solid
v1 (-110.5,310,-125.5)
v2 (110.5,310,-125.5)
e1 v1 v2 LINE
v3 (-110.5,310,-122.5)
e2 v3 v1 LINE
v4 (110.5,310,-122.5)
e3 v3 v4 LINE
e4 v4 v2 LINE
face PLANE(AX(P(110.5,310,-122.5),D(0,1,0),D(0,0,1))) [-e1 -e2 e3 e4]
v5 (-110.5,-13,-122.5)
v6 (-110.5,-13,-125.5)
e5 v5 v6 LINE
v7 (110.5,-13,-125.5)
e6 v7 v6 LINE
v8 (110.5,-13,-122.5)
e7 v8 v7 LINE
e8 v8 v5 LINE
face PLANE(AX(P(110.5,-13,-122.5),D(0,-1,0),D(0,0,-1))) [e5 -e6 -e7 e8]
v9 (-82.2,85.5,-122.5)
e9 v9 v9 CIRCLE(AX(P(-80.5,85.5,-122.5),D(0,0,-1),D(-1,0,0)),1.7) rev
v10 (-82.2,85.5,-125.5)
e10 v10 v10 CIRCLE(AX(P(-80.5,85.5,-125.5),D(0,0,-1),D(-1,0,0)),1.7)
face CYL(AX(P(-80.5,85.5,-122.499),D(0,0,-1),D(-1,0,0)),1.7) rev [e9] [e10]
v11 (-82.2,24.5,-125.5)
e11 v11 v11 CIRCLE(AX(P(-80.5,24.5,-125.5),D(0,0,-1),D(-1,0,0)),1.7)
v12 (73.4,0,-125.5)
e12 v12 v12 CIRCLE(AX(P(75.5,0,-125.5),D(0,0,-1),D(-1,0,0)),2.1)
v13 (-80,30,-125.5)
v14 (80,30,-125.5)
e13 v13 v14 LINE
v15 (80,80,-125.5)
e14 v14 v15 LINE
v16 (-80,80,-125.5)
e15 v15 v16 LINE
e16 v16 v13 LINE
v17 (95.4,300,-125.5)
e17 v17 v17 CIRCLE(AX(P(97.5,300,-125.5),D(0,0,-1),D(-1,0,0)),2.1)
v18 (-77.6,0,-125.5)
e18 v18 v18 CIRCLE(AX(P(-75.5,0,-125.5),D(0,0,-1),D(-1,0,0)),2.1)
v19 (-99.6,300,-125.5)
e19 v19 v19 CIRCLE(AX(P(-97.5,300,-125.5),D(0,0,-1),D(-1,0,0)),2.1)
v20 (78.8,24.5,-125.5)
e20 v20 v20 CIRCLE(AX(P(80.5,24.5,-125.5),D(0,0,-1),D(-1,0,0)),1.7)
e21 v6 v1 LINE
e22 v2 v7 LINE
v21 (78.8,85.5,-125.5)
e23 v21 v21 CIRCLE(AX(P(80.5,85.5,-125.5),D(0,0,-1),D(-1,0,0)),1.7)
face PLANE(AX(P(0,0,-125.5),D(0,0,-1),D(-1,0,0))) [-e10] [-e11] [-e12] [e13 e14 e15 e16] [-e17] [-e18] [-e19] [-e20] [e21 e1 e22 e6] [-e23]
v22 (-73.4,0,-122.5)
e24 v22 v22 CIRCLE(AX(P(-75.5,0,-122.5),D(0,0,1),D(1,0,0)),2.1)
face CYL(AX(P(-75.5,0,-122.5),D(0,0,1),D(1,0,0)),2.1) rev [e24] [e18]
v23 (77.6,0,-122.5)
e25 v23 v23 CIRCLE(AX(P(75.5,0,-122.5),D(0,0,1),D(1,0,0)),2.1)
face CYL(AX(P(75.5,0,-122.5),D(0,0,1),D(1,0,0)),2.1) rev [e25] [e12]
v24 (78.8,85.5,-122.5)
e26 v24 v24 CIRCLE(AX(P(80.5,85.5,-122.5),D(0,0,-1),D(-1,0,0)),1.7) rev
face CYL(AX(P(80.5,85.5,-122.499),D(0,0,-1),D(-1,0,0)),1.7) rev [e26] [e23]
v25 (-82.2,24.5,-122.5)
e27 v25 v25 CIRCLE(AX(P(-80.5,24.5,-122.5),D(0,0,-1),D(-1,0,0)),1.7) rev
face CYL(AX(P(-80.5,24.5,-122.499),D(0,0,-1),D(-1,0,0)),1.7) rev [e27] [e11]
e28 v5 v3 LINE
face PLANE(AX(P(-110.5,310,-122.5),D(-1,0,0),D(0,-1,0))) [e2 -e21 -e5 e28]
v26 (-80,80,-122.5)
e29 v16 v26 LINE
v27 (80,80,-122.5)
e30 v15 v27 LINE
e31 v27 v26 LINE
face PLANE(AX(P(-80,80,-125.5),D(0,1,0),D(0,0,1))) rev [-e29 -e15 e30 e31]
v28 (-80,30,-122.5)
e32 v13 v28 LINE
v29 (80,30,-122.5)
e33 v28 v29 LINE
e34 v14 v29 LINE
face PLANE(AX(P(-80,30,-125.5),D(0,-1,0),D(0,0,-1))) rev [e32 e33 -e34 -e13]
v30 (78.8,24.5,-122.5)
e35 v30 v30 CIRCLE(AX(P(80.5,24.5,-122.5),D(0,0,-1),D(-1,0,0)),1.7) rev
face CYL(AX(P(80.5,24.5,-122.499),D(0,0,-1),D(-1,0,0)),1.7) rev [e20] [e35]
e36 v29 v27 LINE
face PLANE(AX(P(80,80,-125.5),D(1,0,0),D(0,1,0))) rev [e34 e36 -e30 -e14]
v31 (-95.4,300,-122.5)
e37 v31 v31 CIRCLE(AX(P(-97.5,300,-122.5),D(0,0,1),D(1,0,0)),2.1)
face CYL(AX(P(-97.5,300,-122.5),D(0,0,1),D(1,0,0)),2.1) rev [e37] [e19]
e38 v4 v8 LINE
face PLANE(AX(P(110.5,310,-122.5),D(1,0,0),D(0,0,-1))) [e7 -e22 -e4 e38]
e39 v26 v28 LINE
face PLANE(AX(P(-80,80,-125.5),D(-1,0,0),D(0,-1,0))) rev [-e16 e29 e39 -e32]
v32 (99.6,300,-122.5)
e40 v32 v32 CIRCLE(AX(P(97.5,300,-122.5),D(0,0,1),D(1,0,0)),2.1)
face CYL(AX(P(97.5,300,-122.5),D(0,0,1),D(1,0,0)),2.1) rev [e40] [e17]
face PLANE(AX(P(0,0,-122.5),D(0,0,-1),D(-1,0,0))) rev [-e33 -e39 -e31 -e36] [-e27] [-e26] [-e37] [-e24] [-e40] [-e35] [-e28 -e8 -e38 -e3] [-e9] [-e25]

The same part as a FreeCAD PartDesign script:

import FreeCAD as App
import Part
import Sketcher

V = App.Vector

doc = App.newDocument("Part")
params = doc.addObject("Spreadsheet::Sheet", "Params")
for row, (alias, value) in enumerate([
    ("sketch1_width", "221 mm"),
    ("sketch1_height", "323 mm"),
    ("pad1_length", "3 mm"),
    ("sketch2_width", "160 mm"),
    ("sketch2_height", "50 mm"),
    ("sketch3_diameter", "3.4 mm"),
    ("sketch4_diameter", "3.4 mm"),
    ("sketch5_diameter", "3.4 mm"),
    ("sketch6_diameter", "3.4 mm"),
    ("sketch7_diameter", "4.2 mm"),
    ("hole_diameter", "4.2 mm"),
    ("hole_depth", "3 mm"),
], start=1):
    params.set(f"A{row}", alias)
    params.set(f"B{row}", "=" + value)
    params.setAlias(f"B{row}", alias)

body = doc.addObject("PartDesign::Body", "Body")

sketch1 = body.newObject("Sketcher::SketchObject", "Sketch")
sketch1.AttachmentSupport = (doc.getObject("XY_Plane"), [""])
sketch1.MapMode = "FlatFace"
sketch1.AttachmentOffset = App.Placement(V(0, 0, -125.5), App.Rotation())
sketch1.addGeometry(Part.LineSegment(V(110, 310, 0), V(110, -13, 0)), False)
sketch1.addGeometry(Part.LineSegment(V(110, -13, 0), V(-110, -13, 0)), False)
sketch1.addGeometry(Part.LineSegment(V(-110, -13, 0), V(-110, 310, 0)), False)
sketch1.addGeometry(Part.LineSegment(V(-110, 310, 0), V(110, 310, 0)), False)
sketch1.addConstraint(Sketcher.Constraint("Coincident", 0, 2, 1, 1))
sketch1.addConstraint(Sketcher.Constraint("Coincident", 1, 2, 2, 1))
sketch1.addConstraint(Sketcher.Constraint("Coincident", 2, 2, 3, 1))
sketch1.addConstraint(Sketcher.Constraint("Coincident", 3, 2, 0, 1))
sketch1.addConstraint(Sketcher.Constraint("Vertical", 0))
sketch1.addConstraint(Sketcher.Constraint("Horizontal", 1))
sketch1.addConstraint(Sketcher.Constraint("Vertical", 2))
sketch1.addConstraint(Sketcher.Constraint("Horizontal", 3))
sketch1.addConstraint(Sketcher.Constraint("DistanceX", 1, 2, 1, 1, 221.0))
sketch1.addConstraint(Sketcher.Constraint("DistanceY", 0, 2, 0, 1, 323.0))
sketch1.addConstraint(Sketcher.Constraint("DistanceY", 0, 2, -1, 1, 13.0))
sketch1.addConstraint(Sketcher.Constraint("DistanceX", -1, 1, 0, 2, 110.5))
sketch1.setExpression("Constraints[8]", "Params.sketch1_width")
sketch1.setExpression("Constraints[9]", "Params.sketch1_height")
pad1 = body.newObject("PartDesign::Pad", "Pad")
pad1.Profile = sketch1
pad1.setExpression("Length", "Params.pad1_length")

sketch2 = body.newObject("Sketcher::SketchObject", "Sketch001")
sketch2.AttachmentSupport = (doc.getObject("XY_Plane"), [""])
sketch2.MapMode = "FlatFace"
sketch2.AttachmentOffset = App.Placement(V(0, 0, -122.5), App.Rotation())
sketch2.addGeometry(Part.LineSegment(V(-80, 80, 0), V(-80, 30, 0)), False)
sketch2.addGeometry(Part.LineSegment(V(-80, 30, 0), V(80, 30, 0)), False)
sketch2.addGeometry(Part.LineSegment(V(80, 30, 0), V(80, 80, 0)), False)
sketch2.addGeometry(Part.LineSegment(V(80, 80, 0), V(-80, 80, 0)), False)
sketch2.addConstraint(Sketcher.Constraint("Coincident", 0, 2, 1, 1))
sketch2.addConstraint(Sketcher.Constraint("Coincident", 1, 2, 2, 1))
sketch2.addConstraint(Sketcher.Constraint("Coincident", 2, 2, 3, 1))
sketch2.addConstraint(Sketcher.Constraint("Coincident", 3, 2, 0, 1))
sketch2.addConstraint(Sketcher.Constraint("Vertical", 0))
sketch2.addConstraint(Sketcher.Constraint("Horizontal", 1))
sketch2.addConstraint(Sketcher.Constraint("Vertical", 2))
sketch2.addConstraint(Sketcher.Constraint("Horizontal", 3))
sketch2.addConstraint(Sketcher.Constraint("DistanceX", 1, 1, 1, 2, 160.0))
sketch2.addConstraint(Sketcher.Constraint("DistanceY", 0, 2, 0, 1, 50.0))
sketch2.addConstraint(Sketcher.Constraint("DistanceX", 0, 2, -1, 1, 80.0))
sketch2.addConstraint(Sketcher.Constraint("DistanceY", -1, 1, 0, 2, 30.0))
sketch2.setExpression("Constraints[8]", "Params.sketch2_width")
sketch2.setExpression("Constraints[9]", "Params.sketch2_height")
pocket1 = body.newObject("PartDesign::Pocket", "Pocket")
pocket1.Profile = sketch2
pocket1.Type = "ThroughAll"

sketch3 = body.newObject("Sketcher::SketchObject", "Sketch002")
sketch3.AttachmentSupport = (doc.getObject("XY_Plane"), [""])
sketch3.MapMode = "FlatFace"
sketch3.AttachmentOffset = App.Placement(V(0, 0, -125.5), App.Rotation())
sketch3.addGeometry(Part.Circle(V(-80.5, 85.5, 0), V(0, 0, 1), 1.7), False)
sketch3.addConstraint(Sketcher.Constraint("Diameter", 0, 3.4))
sketch3.addConstraint(Sketcher.Constraint("DistanceX", 0, 3, -1, 1, 80.5))
sketch3.addConstraint(Sketcher.Constraint("DistanceY", -1, 1, 0, 3, 85.5))
sketch3.setExpression("Constraints[0]", "Params.sketch3_diameter")
pocket2 = body.newObject("PartDesign::Pocket", "Pocket001")
pocket2.Profile = sketch3
pocket2.Type = "UpToFirst"
pocket2.Reversed = True

sketch4 = body.newObject("Sketcher::SketchObject", "Sketch003")
sketch4.AttachmentSupport = (doc.getObject("XY_Plane"), [""])
sketch4.MapMode = "FlatFace"
sketch4.AttachmentOffset = App.Placement(V(0, 0, -125.5), App.Rotation())
sketch4.addGeometry(Part.Circle(V(-80.5, 24.5, 0), V(0, 0, 1), 1.7), False)
sketch4.addConstraint(Sketcher.Constraint("Diameter", 0, 3.4))
sketch4.addConstraint(Sketcher.Constraint("DistanceX", 0, 3, -1, 1, 80.5))
sketch4.addConstraint(Sketcher.Constraint("DistanceY", -1, 1, 0, 3, 24.5))
sketch4.setExpression("Constraints[0]", "Params.sketch4_diameter")
pocket3 = body.newObject("PartDesign::Pocket", "Pocket002")
pocket3.Profile = sketch4
pocket3.Type = "UpToFirst"
pocket3.Reversed = True

sketch5 = body.newObject("Sketcher::SketchObject", "Sketch004")
sketch5.AttachmentSupport = (doc.getObject("XY_Plane"), [""])
sketch5.MapMode = "FlatFace"
sketch5.AttachmentOffset = App.Placement(V(0, 0, -125.5), App.Rotation())
sketch5.addGeometry(Part.Circle(V(80.5, 24.5, 0), V(0, 0, 1), 1.7), False)
sketch5.addConstraint(Sketcher.Constraint("Diameter", 0, 3.4))
sketch5.addConstraint(Sketcher.Constraint("DistanceX", -1, 1, 0, 3, 80.5))
sketch5.addConstraint(Sketcher.Constraint("DistanceY", -1, 1, 0, 3, 24.5))
sketch5.setExpression("Constraints[0]", "Params.sketch5_diameter")
pocket4 = body.newObject("PartDesign::Pocket", "Pocket003")
pocket4.Profile = sketch5
pocket4.Type = "UpToFirst"
pocket4.Reversed = True

sketch6 = body.newObject("Sketcher::SketchObject", "Sketch005")
sketch6.AttachmentSupport = (doc.getObject("XY_Plane"), [""])
sketch6.MapMode = "FlatFace"
sketch6.AttachmentOffset = App.Placement(V(0, 0, -125.5), App.Rotation())
sketch6.addGeometry(Part.Circle(V(80.5, 85.5, 0), V(0, 0, 1), 1.7), False)
sketch6.addConstraint(Sketcher.Constraint("Diameter", 0, 3.4))
sketch6.addConstraint(Sketcher.Constraint("DistanceX", -1, 1, 0, 3, 80.5))
sketch6.addConstraint(Sketcher.Constraint("DistanceY", -1, 1, 0, 3, 85.5))
sketch6.setExpression("Constraints[0]", "Params.sketch6_diameter")
pocket5 = body.newObject("PartDesign::Pocket", "Pocket004")
pocket5.Profile = sketch6
pocket5.Type = "UpToFirst"
pocket5.Reversed = True

sketch7 = body.newObject("Sketcher::SketchObject", "Sketch006")
sketch7.AttachmentSupport = (doc.getObject("XY_Plane"), [""])
sketch7.MapMode = "FlatFace"
sketch7.AttachmentOffset = App.Placement(V(0, 0, -122.5), App.Rotation())
sketch7.addGeometry(Part.Circle(V(-97.5, 300, 0), V(0, 0, 1), 2.1), False)
sketch7.addGeometry(Part.Circle(V(97.5, 300, 0), V(0, 0, 1), 2.1), False)
sketch7.addGeometry(Part.Circle(V(75.5, 0, 0), V(0, 0, 1), 2.1), False)
sketch7.addGeometry(Part.Circle(V(-75.5, 0, 0), V(0, 0, 1), 2.1), False)
sketch7.addConstraint(Sketcher.Constraint("Equal", 0, 1))
sketch7.addConstraint(Sketcher.Constraint("Equal", 1, 2))
sketch7.addConstraint(Sketcher.Constraint("Equal", 2, 3))
sketch7.addConstraint(Sketcher.Constraint("Symmetric", 2, 3, 3, 3, -1, 1))
sketch7.addConstraint(Sketcher.Constraint("Symmetric", 0, 3, 1, 3, -2))
sketch7.addConstraint(Sketcher.Constraint("PointOnObject", 2, 3, -1))
sketch7.addConstraint(Sketcher.Constraint("Diameter", 0, 4.2))
sketch7.addConstraint(Sketcher.Constraint("DistanceY", -1, 1, 0, 3, 300.0))
sketch7.addConstraint(Sketcher.Constraint("DistanceX", 0, 3, 1, 3, 195.0))
sketch7.addConstraint(Sketcher.Constraint("DistanceX", 2, 3, 1, 3, 22.0))
sketch7.setExpression("Constraints[6]", "Params.sketch7_diameter")
doc.recompute()
hole = body.newObject("PartDesign::Hole", "Hole")
hole.Profile = sketch7
hole.ThreadType = "None"
hole.setExpression("Diameter", "Params.hole_diameter")
hole.DepthType = "Dimension"
hole.setExpression("Depth", "Params.hole_depth")
hole.DrillPoint = "Flat"

doc.recompute()
